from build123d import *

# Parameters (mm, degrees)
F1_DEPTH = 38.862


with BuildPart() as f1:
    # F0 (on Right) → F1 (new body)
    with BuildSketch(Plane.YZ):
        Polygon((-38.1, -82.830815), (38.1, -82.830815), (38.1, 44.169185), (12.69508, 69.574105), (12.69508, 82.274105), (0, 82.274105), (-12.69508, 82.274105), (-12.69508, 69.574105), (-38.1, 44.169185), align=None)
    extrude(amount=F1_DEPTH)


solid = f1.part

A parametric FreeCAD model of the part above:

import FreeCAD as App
import Part
import Sketcher
Q = App.Units.Quantity

doc = App.newDocument("Part")
body = doc.addObject("PartDesign::Body", "Body")

# Sketch on YZ plane
sketch1 = doc.addObject("Sketcher::SketchObject", "Sketch")
body.addObject(sketch1)
sketch1.AttachmentSupport = (doc.YZ_Plane, [""])
sketch1.MapMode = "FlatFace"
sketch1.addGeometry(Part.LineSegment(App.Vector(-38, -83, 0), App.Vector(38, -83, 0)), False)
sketch1.addGeometry(Part.LineSegment(App.Vector(38, -83, 0), App.Vector(38, 44, 0)), False)
sketch1.addGeometry(Part.LineSegment(App.Vector(38, 44, 0), App.Vector(13, 70, 0)), False)
sketch1.addGeometry(Part.LineSegment(App.Vector(13, 70, 0), App.Vector(13, 82, 0)), False)
sketch1.addGeometry(Part.LineSegment(App.Vector(13, 82, 0), App.Vector(-13, 82, 0)), False)
sketch1.addGeometry(Part.LineSegment(App.Vector(-13, 82, 0), App.Vector(-13, 70, 0)), False)
sketch1.addGeometry(Part.LineSegment(App.Vector(-13, 70, 0), App.Vector(-38, 44, 0)), False)
sketch1.addGeometry(Part.LineSegment(App.Vector(-38, 44, 0), App.Vector(-38, -83, 0)), False)
sketch1.addConstraint(Sketcher.Constraint("Coincident", 0, 2, 1, 1))
sketch1.addConstraint(Sketcher.Constraint("Coincident", 1, 2, 2, 1))
sketch1.addConstraint(Sketcher.Constraint("Coincident", 2, 2, 3, 1))
sketch1.addConstraint(Sketcher.Constraint("Coincident", 3, 2, 4, 1))
sketch1.addConstraint(Sketcher.Constraint("Coincident", 4, 2, 5, 1))
sketch1.addConstraint(Sketcher.Constraint("Coincident", 5, 2, 6, 1))
sketch1.addConstraint(Sketcher.Constraint("Coincident", 6, 2, 7, 1))
sketch1.addConstraint(Sketcher.Constraint("Coincident", 7, 2, 0, 1))
sketch1.addConstraint(Sketcher.Constraint("Horizontal", 0))
sketch1.addConstraint(Sketcher.Constraint("Vertical", 1))
sketch1.addConstraint(Sketcher.Constraint("Vertical", 3))
sketch1.addConstraint(Sketcher.Constraint("Horizontal", 4))
sketch1.addConstraint(Sketcher.Constraint("Vertical", 5))
sketch1.addConstraint(Sketcher.Constraint("Vertical", 7))
sketch1.addConstraint(Sketcher.Constraint("Symmetric", 2, 2, 5, 2, -2))
sketch1.addConstraint(Sketcher.Constraint("Symmetric", 1, 2, 6, 2, -2))
sketch1.addConstraint(Sketcher.Constraint("Perpendicular", 2, 6))
sketch1.addConstraint(Sketcher.Constraint("DistanceX", 0, 1, 0, 2, Q("3 in")))
sketch1.addConstraint(Sketcher.Constraint("DistanceY", 1, 1, 1, 2, Q("5 in")))
sketch1.addConstraint(Sketcher.Constraint("DistanceY", 3, 1, 3, 2, Q("0.5 in")))
sketch1.addConstraint(Sketcher.Constraint("DistanceX", 4, 2, 4, 1, Q("25.39016 mm")))
sketch1.addConstraint(Sketcher.Constraint("DistanceY", 0, 2, -1, 1, Q("82.830815 mm")))
pad1 = doc.addObject("PartDesign::Pad", "Pad")
body.addObject(pad1)
pad1.Profile = sketch1
pad1.Length = Q("1.53 in")

doc.recompute()
